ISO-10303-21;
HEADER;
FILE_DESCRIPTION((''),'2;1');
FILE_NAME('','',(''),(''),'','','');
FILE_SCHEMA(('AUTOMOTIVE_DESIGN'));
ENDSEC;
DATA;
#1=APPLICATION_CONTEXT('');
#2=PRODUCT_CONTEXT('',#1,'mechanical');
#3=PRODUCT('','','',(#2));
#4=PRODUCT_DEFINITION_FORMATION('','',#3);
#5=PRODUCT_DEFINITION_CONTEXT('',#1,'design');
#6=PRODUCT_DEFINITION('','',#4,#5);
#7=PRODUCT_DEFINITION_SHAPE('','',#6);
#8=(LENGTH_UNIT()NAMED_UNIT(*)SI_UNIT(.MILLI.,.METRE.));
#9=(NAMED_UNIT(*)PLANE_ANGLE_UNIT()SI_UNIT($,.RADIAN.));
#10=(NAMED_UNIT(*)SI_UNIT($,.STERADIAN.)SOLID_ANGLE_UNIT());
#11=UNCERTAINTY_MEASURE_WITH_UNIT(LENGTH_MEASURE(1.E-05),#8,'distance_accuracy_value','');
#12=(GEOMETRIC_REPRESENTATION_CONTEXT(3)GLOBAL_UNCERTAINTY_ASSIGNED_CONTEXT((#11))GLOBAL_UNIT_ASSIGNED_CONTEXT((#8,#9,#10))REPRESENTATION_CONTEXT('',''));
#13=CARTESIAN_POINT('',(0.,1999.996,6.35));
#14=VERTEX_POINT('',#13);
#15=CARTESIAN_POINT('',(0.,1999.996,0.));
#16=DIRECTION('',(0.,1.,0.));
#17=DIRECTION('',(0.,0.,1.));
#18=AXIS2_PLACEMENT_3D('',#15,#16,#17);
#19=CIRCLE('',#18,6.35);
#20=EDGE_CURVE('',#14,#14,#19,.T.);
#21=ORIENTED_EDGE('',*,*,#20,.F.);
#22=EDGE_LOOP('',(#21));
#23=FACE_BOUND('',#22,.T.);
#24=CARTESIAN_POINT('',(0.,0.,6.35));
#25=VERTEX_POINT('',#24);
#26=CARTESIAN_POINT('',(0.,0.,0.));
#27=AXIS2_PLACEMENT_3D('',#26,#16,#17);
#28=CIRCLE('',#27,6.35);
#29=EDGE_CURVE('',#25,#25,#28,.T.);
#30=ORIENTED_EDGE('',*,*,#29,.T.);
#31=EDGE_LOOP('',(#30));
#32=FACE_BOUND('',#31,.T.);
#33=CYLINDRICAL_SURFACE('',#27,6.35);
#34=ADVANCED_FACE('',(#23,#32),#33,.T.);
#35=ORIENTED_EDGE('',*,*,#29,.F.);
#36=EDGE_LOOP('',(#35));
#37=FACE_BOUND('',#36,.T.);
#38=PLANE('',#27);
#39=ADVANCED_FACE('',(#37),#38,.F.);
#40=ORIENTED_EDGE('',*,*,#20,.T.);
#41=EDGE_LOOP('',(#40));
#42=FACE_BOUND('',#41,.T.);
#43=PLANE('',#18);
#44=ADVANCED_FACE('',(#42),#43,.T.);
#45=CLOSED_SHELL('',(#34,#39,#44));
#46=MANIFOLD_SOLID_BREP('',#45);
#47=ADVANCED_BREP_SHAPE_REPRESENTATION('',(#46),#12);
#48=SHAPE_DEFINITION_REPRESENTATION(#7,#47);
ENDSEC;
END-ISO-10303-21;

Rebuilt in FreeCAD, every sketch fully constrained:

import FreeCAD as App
import Part
import Sketcher

V = App.Vector
Q = App.Units.Quantity

doc = App.newDocument("Part")
body = doc.addObject("PartDesign::Body", "Body")

sketch1 = body.newObject("Sketcher::SketchObject", "Sketch")
sketch1.AttachmentSupport = (doc.getObject("XZ_Plane"), [""])
sketch1.MapMode = "FlatFace"
sketch1.addGeometry(Part.Circle(V(0, 0, 0), V(0, 0, 1), 6), False)
sketch1.addConstraint([
    Sketcher.Constraint("Coincident", 0, 3, -1, 1),
    Sketcher.Constraint("Diameter", 0, Q("0.5 in")),
])

sketch2 = body.newObject("Sketcher::SketchObject", "Sketch001")
sketch2.AttachmentSupport = (doc.getObject("XY_Plane"), [""])
sketch2.MapMode = "FlatFace"
sketch2.addGeometry(Part.LineSegment(V(0, 0, 0), V(0, 1999.996, 0)), False)
sketch2.addConstraint([
    Sketcher.Constraint("Vertical", 0),
    Sketcher.Constraint("Coincident", 0, 1, -1, 1),
    Sketcher.Constraint("DistanceY", 0, 1, 0, 2, Q("78.74 in")),
])
doc.recompute()

additivepipe = body.newObject("PartDesign::AdditivePipe", "AdditivePipe")
additivepipe.Profile = sketch1
additivepipe.Spine = (sketch2, ["Edge1"])

doc.recompute()
